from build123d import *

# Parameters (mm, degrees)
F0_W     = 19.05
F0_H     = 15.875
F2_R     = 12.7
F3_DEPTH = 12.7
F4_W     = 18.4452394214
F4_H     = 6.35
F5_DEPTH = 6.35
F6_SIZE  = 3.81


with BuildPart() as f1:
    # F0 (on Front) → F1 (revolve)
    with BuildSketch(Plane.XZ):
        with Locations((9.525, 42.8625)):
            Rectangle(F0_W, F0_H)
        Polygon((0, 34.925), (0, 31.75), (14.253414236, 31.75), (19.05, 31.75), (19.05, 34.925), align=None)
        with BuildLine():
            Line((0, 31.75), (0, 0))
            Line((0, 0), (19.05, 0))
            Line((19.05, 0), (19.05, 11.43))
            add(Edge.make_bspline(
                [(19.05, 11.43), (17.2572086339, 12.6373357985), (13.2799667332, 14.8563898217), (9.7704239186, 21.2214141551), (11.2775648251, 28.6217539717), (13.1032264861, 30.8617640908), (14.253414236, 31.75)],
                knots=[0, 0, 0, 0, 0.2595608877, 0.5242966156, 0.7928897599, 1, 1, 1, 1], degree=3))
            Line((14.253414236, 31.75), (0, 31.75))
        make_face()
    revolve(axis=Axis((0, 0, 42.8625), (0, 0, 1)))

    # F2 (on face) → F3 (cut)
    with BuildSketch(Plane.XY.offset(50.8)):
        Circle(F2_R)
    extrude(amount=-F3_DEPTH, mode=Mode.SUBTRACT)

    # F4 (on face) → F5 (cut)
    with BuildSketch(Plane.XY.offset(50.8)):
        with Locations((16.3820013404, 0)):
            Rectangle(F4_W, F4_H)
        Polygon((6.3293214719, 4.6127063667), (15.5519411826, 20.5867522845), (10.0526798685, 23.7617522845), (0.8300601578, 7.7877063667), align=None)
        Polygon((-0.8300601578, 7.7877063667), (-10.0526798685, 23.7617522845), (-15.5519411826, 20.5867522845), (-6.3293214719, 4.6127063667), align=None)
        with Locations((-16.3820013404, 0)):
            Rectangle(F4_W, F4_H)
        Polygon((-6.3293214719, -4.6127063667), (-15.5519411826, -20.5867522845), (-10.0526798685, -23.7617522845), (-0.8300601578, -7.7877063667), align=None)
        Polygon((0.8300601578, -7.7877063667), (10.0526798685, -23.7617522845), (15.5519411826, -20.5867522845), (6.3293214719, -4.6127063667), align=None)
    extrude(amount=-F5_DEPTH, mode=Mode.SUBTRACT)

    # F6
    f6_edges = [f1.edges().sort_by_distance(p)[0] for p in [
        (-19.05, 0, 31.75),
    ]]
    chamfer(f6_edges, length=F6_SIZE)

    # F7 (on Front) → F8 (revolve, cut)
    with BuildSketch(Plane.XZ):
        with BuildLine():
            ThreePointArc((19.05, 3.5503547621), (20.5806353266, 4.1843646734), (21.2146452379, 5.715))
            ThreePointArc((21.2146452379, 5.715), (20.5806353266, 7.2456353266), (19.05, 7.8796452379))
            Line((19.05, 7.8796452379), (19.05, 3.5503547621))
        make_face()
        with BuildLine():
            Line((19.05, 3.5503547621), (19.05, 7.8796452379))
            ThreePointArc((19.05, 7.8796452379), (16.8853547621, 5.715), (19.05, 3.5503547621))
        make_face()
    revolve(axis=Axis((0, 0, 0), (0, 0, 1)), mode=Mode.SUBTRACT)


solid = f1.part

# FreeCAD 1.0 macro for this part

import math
import FreeCAD as App
import Part
import Sketcher

V = App.Vector
Q = App.Units.Quantity


def edges_at(feature, points):
    """Names of the edges that pass closest to the given points."""
    edges = feature.Shape.Edges
    near = lambda p: min(range(len(edges)), key=lambda i: edges[i].distToShape(Part.Vertex(*p))[0])
    return sorted({f"Edge{near(p) + 1}" for p in points})


def add_polygon(sketch, points):
    """Adds a closed chain of lines whose ends are joined by coincident constraints."""
    first, n = sketch.GeometryCount, len(points)
    for a, b in zip(points, points[1:] + points[:1]):
        sketch.addGeometry(Part.LineSegment(App.Vector(*a, 0), App.Vector(*b, 0)), False)
    for i in range(n):
        sketch.addConstraint(Sketcher.Constraint("Coincident", first + i, 2, first + (i + 1) % n, 1))

doc = App.newDocument("Part")
body = doc.addObject("PartDesign::Body", "Body")

# Sketch on XZ plane
sketch1 = doc.addObject("Sketcher::SketchObject", "Sketch")
body.addObject(sketch1)
sketch1.AttachmentSupport = (doc.XZ_Plane, [""])
sketch1.MapMode = "FlatFace"
sketch1.addGeometry([
    Part.LineSegment(V(0, 50.8, 0), V(0, 0, 0)),  # 0
    Part.LineSegment(V(0, 0, 0), V(19.05, 0, 0)),  # 1
    Part.LineSegment(V(19.05, 0, 0), V(19.05, 11.43, 0)),  # 2
    Part.BSplineCurve([V(19.05, 11.43, 0), V(17.257209, 12.637336, 0), V(13.279967, 14.85639, 0), V(9.770424, 21.221414, 0), V(11.277565, 28.621754, 0), V(13.103226, 30.861764, 0), V(14.253414, 31.75, 0)], [4, 1, 1, 1, 4], [0, 0.259560888, 0.524296616, 0.79288976, 1], False, 3, [1, 1, 1, 1, 1, 1, 1], False),  # 3
    Part.LineSegment(V(14.253414, 31.75, 0), V(19.05, 31.75, 0)),  # 4
    Part.LineSegment(V(19.05, 31.75, 0), V(19.05, 50.8, 0)),  # 5
    Part.LineSegment(V(19.05, 50.8, 0), V(0, 50.8, 0)),  # 6
], False)
sketch1.addConstraint([
    Sketcher.Constraint("Block", 3),
    Sketcher.Constraint("Coincident", 0, 2, 1, 1),
    Sketcher.Constraint("Coincident", 1, 2, 2, 1),
    Sketcher.Constraint("Coincident", 2, 2, 3, 1),
    Sketcher.Constraint("Coincident", 3, 2, 4, 1),
    Sketcher.Constraint("Coincident", 4, 2, 5, 1),
    Sketcher.Constraint("Coincident", 5, 2, 6, 1),
    Sketcher.Constraint("Coincident", 6, 2, 0, 1),
    Sketcher.Constraint("Vertical", 0),
    Sketcher.Constraint("Horizontal", 1),
    Sketcher.Constraint("Vertical", 2),
    Sketcher.Constraint("Horizontal", 4),
    Sketcher.Constraint("Vertical", 5),
    Sketcher.Constraint("Horizontal", 6),
    Sketcher.Constraint("Coincident", 0, 2, -1, 1),
    Sketcher.Constraint("DistanceY", 0, 2, 0, 1, Q("2 in")),
    Sketcher.Constraint("DistanceX", 6, 2, 6, 1, Q("0.75 in")),
])
revolution = doc.addObject("PartDesign::Revolution", "Revolution")
body.addObject(revolution)
revolution.Profile = sketch1
revolution.ReferenceAxis = (sketch1, ["V_Axis"])
revolution.Angle = 360

# Sketch on XY plane
sketch2 = doc.addObject("Sketcher::SketchObject", "Sketch001")
body.addObject(sketch2)
sketch2.AttachmentSupport = (doc.XY_Plane, [""])
sketch2.MapMode = "FlatFace"
sketch2.AttachmentOffset = App.Placement(V(0, 0, 2 * 25.4), App.Rotation())
sketch2.addGeometry(Part.Circle(V(0, 0, 0), V(0, 0, 1), 13), False)
sketch2.addConstraint([
    Sketcher.Constraint("Coincident", 0, 3, -1, 1),
    Sketcher.Constraint("Diameter", 0, Q("1 in")),
])
pocket1 = doc.addObject("PartDesign::Pocket", "Pocket")
body.addObject(pocket1)
pocket1.Profile = sketch2
pocket1.Length = Q("0.5 in")

# Sketch on XY plane
sketch3 = doc.addObject("Sketcher::SketchObject", "Sketch002")
body.addObject(sketch3)
sketch3.AttachmentSupport = (doc.XY_Plane, [""])
sketch3.MapMode = "FlatFace"
sketch3.AttachmentOffset = App.Placement(V(0, 0, 2 * 25.4), App.Rotation())
add_polygon(sketch3, [(7, 3), (7, -3), (26, -3), (26, 3)])  # lines 0-3
add_polygon(sketch3, [(6, 5), (16, 21), (10, 24), (1, 8)])  # lines 4-7
add_polygon(sketch3, [(-1, 8), (-10, 24), (-16, 21), (-6, 5)])  # lines 8-11
add_polygon(sketch3, [(-26, 3), (-26, -3), (-7, -3), (-7, 3)])  # lines 12-15
add_polygon(sketch3, [(-6, -5), (-16, -21), (-10, -24), (-1, -8)])  # lines 16-19
add_polygon(sketch3, [(1, -8), (10, -24), (16, -21), (6, -5)])  # lines 20-23
sketch3.addConstraint([
    Sketcher.Constraint("Vertical", 0),
    Sketcher.Constraint("Horizontal", 1),
    Sketcher.Constraint("Vertical", 2),
    Sketcher.Constraint("Horizontal", 3),
    Sketcher.Constraint("Vertical", 12),
    Sketcher.Constraint("Horizontal", 13),
    Sketcher.Constraint("Vertical", 14),
    Sketcher.Constraint("Horizontal", 15),
    Sketcher.Constraint("Symmetric", 2, 2, 12, 2, -1, 1),
    Sketcher.Constraint("Symmetric", 0, 2, 14, 2, -1, 1),
    Sketcher.Constraint("Symmetric", 4, 2, 16, 2, -1, 1),
    Sketcher.Constraint("Symmetric", 5, 2, 17, 2, -1, 1),
    Sketcher.Constraint("Symmetric", 6, 2, 18, 2, -1, 1),
    Sketcher.Constraint("Symmetric", 7, 2, 19, 2, -1, 1),
    Sketcher.Constraint("Symmetric", 8, 2, 20, 2, -1, 1),
    Sketcher.Constraint("Symmetric", 9, 2, 21, 2, -1, 1),
    Sketcher.Constraint("Symmetric", 10, 2, 22, 2, -1, 1),
    Sketcher.Constraint("Symmetric", 11, 2, 23, 2, -1, 1),
    Sketcher.Constraint("Symmetric", 5, 2, 8, 2, -2),
    Sketcher.Constraint("Symmetric", 4, 2, 9, 2, -2),
    Sketcher.Constraint("Symmetric", 7, 2, 10, 2, -2),
    Sketcher.Constraint("Symmetric", 6, 2, 11, 2, -2),
    Sketcher.Constraint("Perpendicular", 4, 5),
    Sketcher.Constraint("Perpendicular", 5, 6),
    Sketcher.Constraint("Perpendicular", 6, 7),
    Sketcher.Constraint("Horizontal", 1, 2, 12, 2),
    Sketcher.Constraint("Angle", 4, Q("60 deg")),
    Sketcher.Constraint("DistanceY", 0, 2, 0, 1, Q("0.25 in")),
    Sketcher.Constraint("Distance", 5, Q("0.25 in")),
    Sketcher.Constraint("DistanceX", 1, 1, 1, 2, 18.445239),
    Sketcher.Constraint("DistanceX", 3, 2, 5, 2, 2.893298),
    Sketcher.Constraint("DistanceX", 7, 2, 2, 2, 19.2753),
    Sketcher.Constraint("DistanceX", 8, 2, 7, 2, 16.382001),
    Sketcher.Constraint("DistanceY", 16, 2, 10, 2, 25.199459),
])
pocket2 = doc.addObject("PartDesign::Pocket", "Pocket001")
body.addObject(pocket2)
pocket2.Profile = sketch3
pocket2.Length = Q("0.25 in")
doc.recompute()

chamfer = doc.addObject("PartDesign::Chamfer", "Chamfer")
body.addObject(chamfer)
chamfer.Base = (pocket2, edges_at(pocket2, [(-19.05, 0, 31.75)]))
chamfer.Size = Q("0.15 in")

# Sketch on XZ plane
sketch4 = doc.addObject("Sketcher::SketchObject", "Sketch003")
body.addObject(sketch4)
sketch4.AttachmentSupport = (doc.XZ_Plane, [""])
sketch4.MapMode = "FlatFace"
sketch4.addGeometry([
    Part.ArcOfCircle(Part.Circle(V(19.1, 5.7, 0), V(0, 0, 1), 2.2), math.radians(-90), math.radians(0)),
    Part.ArcOfCircle(Part.Circle(V(19.1, 5.7, 0), V(0, 0, 1), 2.2), math.radians(0), math.radians(90)),
    Part.ArcOfCircle(Part.Circle(V(19.1, 5.7, 0), V(0, 0, 1), 2.2), math.radians(90), math.radians(270)),
], False)
sketch4.addConstraint([
    Sketcher.Constraint("Tangent", 0, 2, 1, 1),
    Sketcher.Constraint("Tangent", 1, 2, 2, 1),
    Sketcher.Constraint("Tangent", 2, 2, 0, 1),
    Sketcher.Constraint("Horizontal", 2, 3, 0, 2),
    Sketcher.Constraint("Vertical", 2, 3, 1, 2),
    Sketcher.Constraint("Vertical", 1, 2, 2, 2),
    Sketcher.Constraint("DistanceX", -1, 1, 0, 3, Q("0.75 in")),
    Sketcher.Constraint("DistanceY", -1, 1, 0, 3, Q("0.225 in")),
    Sketcher.Constraint("Radius", 0, 2.164645),
])
groove = doc.addObject("PartDesign::Groove", "Groove")
body.addObject(groove)
groove.Profile = sketch4
groove.ReferenceAxis = (sketch4, ["V_Axis"])
groove.Angle = 360

doc.recompute()
